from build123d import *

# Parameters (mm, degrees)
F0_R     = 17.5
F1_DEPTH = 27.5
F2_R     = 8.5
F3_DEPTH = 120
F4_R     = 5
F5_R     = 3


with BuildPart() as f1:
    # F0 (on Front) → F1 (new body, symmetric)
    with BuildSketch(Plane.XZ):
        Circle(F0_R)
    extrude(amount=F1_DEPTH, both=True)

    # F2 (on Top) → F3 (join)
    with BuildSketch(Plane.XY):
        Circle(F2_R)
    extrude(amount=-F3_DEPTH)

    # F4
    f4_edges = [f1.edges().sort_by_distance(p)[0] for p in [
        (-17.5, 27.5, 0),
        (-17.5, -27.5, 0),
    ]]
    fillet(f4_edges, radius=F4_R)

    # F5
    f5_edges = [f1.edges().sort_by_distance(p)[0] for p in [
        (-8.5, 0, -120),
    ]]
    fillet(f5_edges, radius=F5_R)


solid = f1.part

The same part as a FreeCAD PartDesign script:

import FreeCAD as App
import Part
import Sketcher


def edges_at(feature, points):
    """Names of the edges that pass closest to the given points."""
    edges = feature.Shape.Edges
    near = lambda p: min(range(len(edges)), key=lambda i: edges[i].distToShape(Part.Vertex(*p))[0])
    return sorted({f"Edge{near(p) + 1}" for p in points})

doc = App.newDocument("Part")
params = doc.addObject("Spreadsheet::Sheet", "Params")
for row, (alias, value) in enumerate([
    ("sketch1_diameter", "35 mm"),
    ("pad1_length", "55 mm"),
    ("sketch2_diameter", "17 mm"),
    ("pad2_length", "120 mm"),
    ("fillet_radius", "5 mm"),
    ("fillet2_radius", "3 mm"),
], start=1):
    params.set(f"A{row}", alias)
    params.set(f"B{row}", "=" + value)
    params.setAlias(f"B{row}", alias)

body = doc.addObject("PartDesign::Body", "Body")

# Sketch on XZ plane
sketch1 = doc.addObject("Sketcher::SketchObject", "Sketch")
body.addObject(sketch1)
sketch1.AttachmentSupport = (doc.XZ_Plane, [""])
sketch1.MapMode = "FlatFace"
sketch1.addGeometry(Part.Circle(App.Vector(0, 0, 0), App.Vector(0, 0, 1), 17.5), False)
sketch1.addConstraint([
    Sketcher.Constraint("Coincident", 0, 3, -1, 1),
    Sketcher.Constraint("Diameter", 0, 35.0),
])
sketch1.setExpression("Constraints[1]", "Params.sketch1_diameter")
pad1 = doc.addObject("PartDesign::Pad", "Pad")
body.addObject(pad1)
pad1.Profile = sketch1
pad1.setExpression("Length", "Params.pad1_length")
pad1.Midplane = True

# Sketch on XY plane
sketch2 = doc.addObject("Sketcher::SketchObject", "Sketch001")
body.addObject(sketch2)
sketch2.AttachmentSupport = (doc.XY_Plane, [""])
sketch2.MapMode = "FlatFace"
sketch2.addGeometry(Part.Circle(App.Vector(0, 0, 0), App.Vector(0, 0, 1), 8.5), False)
sketch2.addConstraint([
    Sketcher.Constraint("Coincident", 0, 3, -1, 1),
    Sketcher.Constraint("Diameter", 0, 17.0),
])
sketch2.setExpression("Constraints[1]", "Params.sketch2_diameter")
pad2 = doc.addObject("PartDesign::Pad", "Pad001")
body.addObject(pad2)
pad2.Profile = sketch2
pad2.setExpression("Length", "Params.pad2_length")
pad2.Reversed = True
doc.recompute()

fillet = doc.addObject("PartDesign::Fillet", "Fillet")
body.addObject(fillet)
fillet.Base = (pad2, edges_at(pad2, [(-17.5, 27.5, 0), (-17.5, -27.5, 0)]))
fillet.setExpression("Radius", "Params.fillet_radius")
doc.recompute()

fillet2 = doc.addObject("PartDesign::Fillet", "Fillet001")
body.addObject(fillet2)
fillet2.Base = (fillet, edges_at(fillet, [(-8.5, 0, -120)]))
fillet2.setExpression("Radius", "Params.fillet2_radius")

doc.recompute()
